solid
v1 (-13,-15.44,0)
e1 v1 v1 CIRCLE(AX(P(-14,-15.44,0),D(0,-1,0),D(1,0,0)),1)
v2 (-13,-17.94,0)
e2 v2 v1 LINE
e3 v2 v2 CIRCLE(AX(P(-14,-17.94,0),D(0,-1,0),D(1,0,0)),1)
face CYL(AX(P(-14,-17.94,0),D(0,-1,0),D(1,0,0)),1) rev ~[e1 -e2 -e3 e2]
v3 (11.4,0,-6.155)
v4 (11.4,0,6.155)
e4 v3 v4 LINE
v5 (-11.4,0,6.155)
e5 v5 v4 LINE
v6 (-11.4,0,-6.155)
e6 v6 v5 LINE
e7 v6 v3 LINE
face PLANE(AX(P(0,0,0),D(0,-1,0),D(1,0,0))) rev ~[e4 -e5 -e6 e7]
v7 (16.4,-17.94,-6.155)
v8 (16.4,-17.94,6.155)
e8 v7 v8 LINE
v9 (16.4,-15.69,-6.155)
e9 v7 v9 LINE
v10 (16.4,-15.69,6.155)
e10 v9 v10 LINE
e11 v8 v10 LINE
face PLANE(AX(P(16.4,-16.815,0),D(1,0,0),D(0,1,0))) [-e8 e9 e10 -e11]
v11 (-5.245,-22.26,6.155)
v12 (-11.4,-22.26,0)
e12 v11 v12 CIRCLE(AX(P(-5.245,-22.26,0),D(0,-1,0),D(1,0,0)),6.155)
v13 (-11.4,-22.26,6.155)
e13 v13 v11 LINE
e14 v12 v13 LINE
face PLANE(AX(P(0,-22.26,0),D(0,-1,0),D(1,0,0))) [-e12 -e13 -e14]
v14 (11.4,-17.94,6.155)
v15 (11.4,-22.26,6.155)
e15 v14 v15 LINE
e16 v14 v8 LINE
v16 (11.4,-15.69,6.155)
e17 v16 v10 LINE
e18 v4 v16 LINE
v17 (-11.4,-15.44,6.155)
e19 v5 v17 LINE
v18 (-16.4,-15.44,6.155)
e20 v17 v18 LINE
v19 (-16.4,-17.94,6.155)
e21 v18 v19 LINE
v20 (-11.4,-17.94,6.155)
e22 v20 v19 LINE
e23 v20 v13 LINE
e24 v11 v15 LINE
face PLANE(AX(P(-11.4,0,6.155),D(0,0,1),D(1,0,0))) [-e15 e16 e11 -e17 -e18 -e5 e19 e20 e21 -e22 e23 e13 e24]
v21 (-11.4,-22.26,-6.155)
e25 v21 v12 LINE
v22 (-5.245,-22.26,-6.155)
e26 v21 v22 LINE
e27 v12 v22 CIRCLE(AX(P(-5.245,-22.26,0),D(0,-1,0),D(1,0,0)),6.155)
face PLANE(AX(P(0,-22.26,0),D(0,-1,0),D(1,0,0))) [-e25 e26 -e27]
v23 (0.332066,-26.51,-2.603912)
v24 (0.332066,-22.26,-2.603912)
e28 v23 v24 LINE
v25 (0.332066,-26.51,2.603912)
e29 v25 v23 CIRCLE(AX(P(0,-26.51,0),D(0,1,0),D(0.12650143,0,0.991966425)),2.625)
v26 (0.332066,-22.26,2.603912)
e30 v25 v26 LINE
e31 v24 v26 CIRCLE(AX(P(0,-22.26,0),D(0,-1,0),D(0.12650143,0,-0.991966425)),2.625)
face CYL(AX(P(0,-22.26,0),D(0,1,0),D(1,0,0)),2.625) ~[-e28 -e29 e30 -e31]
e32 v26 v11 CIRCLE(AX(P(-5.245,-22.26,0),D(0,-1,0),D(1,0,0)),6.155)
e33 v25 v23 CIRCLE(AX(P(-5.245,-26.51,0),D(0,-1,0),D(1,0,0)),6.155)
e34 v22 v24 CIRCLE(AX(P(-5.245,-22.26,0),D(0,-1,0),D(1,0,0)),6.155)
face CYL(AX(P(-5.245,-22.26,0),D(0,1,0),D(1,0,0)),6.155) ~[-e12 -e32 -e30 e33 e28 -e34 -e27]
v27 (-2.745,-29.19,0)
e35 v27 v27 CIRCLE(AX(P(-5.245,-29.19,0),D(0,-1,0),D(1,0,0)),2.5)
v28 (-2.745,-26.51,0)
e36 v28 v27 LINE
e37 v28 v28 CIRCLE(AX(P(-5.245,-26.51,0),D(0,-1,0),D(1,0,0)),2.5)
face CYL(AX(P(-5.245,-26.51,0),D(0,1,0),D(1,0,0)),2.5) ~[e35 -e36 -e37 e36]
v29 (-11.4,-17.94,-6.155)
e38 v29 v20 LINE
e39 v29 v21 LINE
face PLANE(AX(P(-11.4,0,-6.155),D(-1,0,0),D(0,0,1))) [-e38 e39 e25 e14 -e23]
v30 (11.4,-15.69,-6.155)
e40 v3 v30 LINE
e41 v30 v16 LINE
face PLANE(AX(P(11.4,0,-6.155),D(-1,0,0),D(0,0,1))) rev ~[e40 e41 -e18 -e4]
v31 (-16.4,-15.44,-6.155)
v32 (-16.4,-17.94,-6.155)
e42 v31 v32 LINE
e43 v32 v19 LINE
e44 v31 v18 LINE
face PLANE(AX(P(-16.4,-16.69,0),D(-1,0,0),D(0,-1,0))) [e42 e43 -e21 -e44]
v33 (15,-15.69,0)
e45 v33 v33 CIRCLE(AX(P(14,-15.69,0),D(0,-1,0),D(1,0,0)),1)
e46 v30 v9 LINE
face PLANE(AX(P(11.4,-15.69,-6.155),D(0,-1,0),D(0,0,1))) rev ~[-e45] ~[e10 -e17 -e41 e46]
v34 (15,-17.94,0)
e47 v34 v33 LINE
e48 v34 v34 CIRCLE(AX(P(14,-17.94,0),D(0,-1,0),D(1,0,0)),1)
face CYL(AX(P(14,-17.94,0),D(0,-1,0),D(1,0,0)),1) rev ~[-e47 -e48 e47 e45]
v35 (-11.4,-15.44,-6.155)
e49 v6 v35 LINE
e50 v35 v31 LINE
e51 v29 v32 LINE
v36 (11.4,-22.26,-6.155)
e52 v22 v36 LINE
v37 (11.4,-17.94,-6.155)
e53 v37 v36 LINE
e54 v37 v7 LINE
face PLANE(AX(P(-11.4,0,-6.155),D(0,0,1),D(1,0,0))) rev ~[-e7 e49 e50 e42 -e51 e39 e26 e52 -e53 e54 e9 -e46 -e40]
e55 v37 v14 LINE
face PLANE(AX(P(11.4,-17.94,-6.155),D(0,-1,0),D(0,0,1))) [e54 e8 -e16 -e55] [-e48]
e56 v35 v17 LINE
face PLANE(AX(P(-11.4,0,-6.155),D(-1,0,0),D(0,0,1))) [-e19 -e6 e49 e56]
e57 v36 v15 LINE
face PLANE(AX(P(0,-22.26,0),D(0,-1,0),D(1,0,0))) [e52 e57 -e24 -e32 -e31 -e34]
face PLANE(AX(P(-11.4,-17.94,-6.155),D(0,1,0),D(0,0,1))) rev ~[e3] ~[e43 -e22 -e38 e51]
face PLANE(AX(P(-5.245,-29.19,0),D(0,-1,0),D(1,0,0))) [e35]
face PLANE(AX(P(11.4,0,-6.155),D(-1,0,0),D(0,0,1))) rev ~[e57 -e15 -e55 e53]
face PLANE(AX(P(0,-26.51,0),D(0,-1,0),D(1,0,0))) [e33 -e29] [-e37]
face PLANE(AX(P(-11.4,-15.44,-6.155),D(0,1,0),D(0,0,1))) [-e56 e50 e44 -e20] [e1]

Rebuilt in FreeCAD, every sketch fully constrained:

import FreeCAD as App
import Part
import Sketcher


def add_polygon(sketch, points):
    """Adds a closed chain of lines whose ends are joined by coincident constraints."""
    first, n = sketch.GeometryCount, len(points)
    for a, b in zip(points, points[1:] + points[:1]):
        sketch.addGeometry(Part.LineSegment(App.Vector(*a, 0), App.Vector(*b, 0)), False)
    for i in range(n):
        sketch.addConstraint(Sketcher.Constraint("Coincident", first + i, 2, first + (i + 1) % n, 1))

doc = App.newDocument("Part")
body = doc.addObject("PartDesign::Body", "Body")

sketch1 = body.newObject("Sketcher::SketchObject", "Sketch")
sketch1.AttachmentSupport = (doc.getObject("XZ_Plane"), [""])
sketch1.MapMode = "FlatFace"
add_polygon(sketch1, [(-11, 6), (-11, -6), (11, -6), (11, 6)])
sketch1.addConstraint([
    Sketcher.Constraint("Vertical", 0),
    Sketcher.Constraint("Horizontal", 1),
    Sketcher.Constraint("Vertical", 2),
    Sketcher.Constraint("Horizontal", 3),
    Sketcher.Constraint("Symmetric", 0, 2, 2, 2, -1, 1),
    Sketcher.Constraint("DistanceX", 1, 1, 1, 2, 22.8),
    Sketcher.Constraint("DistanceY", 0, 2, 0, 1, 12.31),
])
pad1 = body.newObject("PartDesign::Pad", "Pad")
pad1.Profile = sketch1
pad1.Length = 22.26

sketch2 = body.newObject("Sketcher::SketchObject", "Sketch001")
sketch2.AttachmentSupport = (doc.getObject("XZ_Plane"), [""])
sketch2.MapMode = "FlatFace"
sketch2.AttachmentOffset = App.Placement(App.Vector(0, 0, 22.26), App.Rotation())
sketch2.addGeometry(Part.Circle(App.Vector(-5, 0, 0), App.Vector(0, 0, 1), 6), False)
sketch2.addConstraint([
    Sketcher.Constraint("PointOnObject", 0, 3, -1),
    Sketcher.Constraint("Diameter", 0, 12.31),
    Sketcher.Constraint("DistanceX", 0, 3, -1, 1, 5.245),
])
pad2 = body.newObject("PartDesign::Pad", "Pad001")
pad2.Profile = sketch2
pad2.Length = 4.25

sketch3 = body.newObject("Sketcher::SketchObject", "Sketch002")
sketch3.AttachmentSupport = (doc.getObject("XZ_Plane"), [""])
sketch3.MapMode = "FlatFace"
sketch3.AttachmentOffset = App.Placement(App.Vector(0, 0, 22.26), App.Rotation())
sketch3.addGeometry(Part.Circle(App.Vector(0, 0, 0), App.Vector(0, 0, 1), 2.6), False)
sketch3.addConstraint([
    Sketcher.Constraint("Coincident", 0, 3, -1, 1),
    Sketcher.Constraint("Diameter", 0, 5.25),
])
pad3 = body.newObject("PartDesign::Pad", "Pad002")
pad3.Profile = sketch3
pad3.Length = 4.25

sketch4 = body.newObject("Sketcher::SketchObject", "Sketch003")
sketch4.AttachmentSupport = (doc.getObject("YZ_Plane"), [""])
sketch4.MapMode = "FlatFace"
sketch4.AttachmentOffset = App.Placement(App.Vector(0, 0, -11.4), App.Rotation())
add_polygon(sketch4, [(-15.4, 6.2), (-15.4, -6.2), (-17.9, -6.2), (-17.9, 6.2)])
sketch4.addConstraint([
    Sketcher.Constraint("Vertical", 0),
    Sketcher.Constraint("Horizontal", 1),
    Sketcher.Constraint("Vertical", 2),
    Sketcher.Constraint("Horizontal", 3),
    Sketcher.Constraint("DistanceX", 1, 2, 1, 1, 2.5),
    Sketcher.Constraint("DistanceY", 0, 2, 0, 1, 12.31),
    Sketcher.Constraint("DistanceX", 0, 2, -1, 1, 15.44),
    Sketcher.Constraint("DistanceY", 0, 2, -1, 1, 6.155),
])
pad4 = body.newObject("PartDesign::Pad", "Pad003")
pad4.Profile = sketch4
pad4.Length = 5
pad4.Reversed = True

sketch5 = body.newObject("Sketcher::SketchObject", "Sketch004")
sketch5.AttachmentSupport = (doc.getObject("YZ_Plane"), [""])
sketch5.MapMode = "FlatFace"
sketch5.AttachmentOffset = App.Placement(App.Vector(0, 0, 11.4), App.Rotation())
add_polygon(sketch5, [(-17.9, 6.2), (-17.9, -6.2), (-15.7, -6.2), (-15.7, 6.2)])
sketch5.addConstraint([
    Sketcher.Constraint("Vertical", 0),
    Sketcher.Constraint("Horizontal", 1),
    Sketcher.Constraint("Vertical", 2),
    Sketcher.Constraint("Horizontal", 3),
    Sketcher.Constraint("DistanceX", 1, 1, 1, 2, 2.25),
    Sketcher.Constraint("DistanceY", 0, 2, 0, 1, 12.31),
    Sketcher.Constraint("DistanceX", 0, 2, -1, 1, 17.94),
    Sketcher.Constraint("DistanceY", 0, 2, -1, 1, 6.155),
])
pad5 = body.newObject("PartDesign::Pad", "Pad004")
pad5.Profile = sketch5
pad5.Length = 5

sketch6 = body.newObject("Sketcher::SketchObject", "Sketch005")
sketch6.AttachmentSupport = (doc.getObject("XZ_Plane"), [""])
sketch6.MapMode = "FlatFace"
sketch6.AttachmentOffset = App.Placement(App.Vector(0, 0, 26.51), App.Rotation())
sketch6.addGeometry(Part.Circle(App.Vector(-5.2, 0, 0), App.Vector(0, 0, 1), 2.5), False)
sketch6.addConstraint([
    Sketcher.Constraint("PointOnObject", 0, 3, -1),
    Sketcher.Constraint("Diameter", 0, 5.0),
    Sketcher.Constraint("DistanceX", 0, 3, -1, 1, 5.245),
])
pad6 = body.newObject("PartDesign::Pad", "Pad005")
pad6.Profile = sketch6
pad6.Length = 2.68

sketch7 = body.newObject("Sketcher::SketchObject", "Sketch006")
sketch7.AttachmentSupport = (doc.getObject("XZ_Plane"), [""])
sketch7.MapMode = "FlatFace"
sketch7.AttachmentOffset = App.Placement(App.Vector(0, 0, 17.94), App.Rotation())
sketch7.addGeometry([
    Part.Circle(App.Vector(-14, 0, 0), App.Vector(0, 0, 1), 1),
    Part.Circle(App.Vector(14, 0, 0), App.Vector(0, 0, 1), 1),
], False)
sketch7.addConstraint([
    Sketcher.Constraint("Equal", 0, 1),
    Sketcher.Constraint("Symmetric", 0, 3, 1, 3, -1, 1),
    Sketcher.Constraint("PointOnObject", 0, 3, -1),
    Sketcher.Constraint("Diameter", 0, 2.0),
    Sketcher.Constraint("DistanceX", 0, 3, -1, 1, 14.0),
])
pocket1 = body.newObject("PartDesign::Pocket", "Pocket")
pocket1.Profile = sketch7
pocket1.Length = 25

doc.recompute()
